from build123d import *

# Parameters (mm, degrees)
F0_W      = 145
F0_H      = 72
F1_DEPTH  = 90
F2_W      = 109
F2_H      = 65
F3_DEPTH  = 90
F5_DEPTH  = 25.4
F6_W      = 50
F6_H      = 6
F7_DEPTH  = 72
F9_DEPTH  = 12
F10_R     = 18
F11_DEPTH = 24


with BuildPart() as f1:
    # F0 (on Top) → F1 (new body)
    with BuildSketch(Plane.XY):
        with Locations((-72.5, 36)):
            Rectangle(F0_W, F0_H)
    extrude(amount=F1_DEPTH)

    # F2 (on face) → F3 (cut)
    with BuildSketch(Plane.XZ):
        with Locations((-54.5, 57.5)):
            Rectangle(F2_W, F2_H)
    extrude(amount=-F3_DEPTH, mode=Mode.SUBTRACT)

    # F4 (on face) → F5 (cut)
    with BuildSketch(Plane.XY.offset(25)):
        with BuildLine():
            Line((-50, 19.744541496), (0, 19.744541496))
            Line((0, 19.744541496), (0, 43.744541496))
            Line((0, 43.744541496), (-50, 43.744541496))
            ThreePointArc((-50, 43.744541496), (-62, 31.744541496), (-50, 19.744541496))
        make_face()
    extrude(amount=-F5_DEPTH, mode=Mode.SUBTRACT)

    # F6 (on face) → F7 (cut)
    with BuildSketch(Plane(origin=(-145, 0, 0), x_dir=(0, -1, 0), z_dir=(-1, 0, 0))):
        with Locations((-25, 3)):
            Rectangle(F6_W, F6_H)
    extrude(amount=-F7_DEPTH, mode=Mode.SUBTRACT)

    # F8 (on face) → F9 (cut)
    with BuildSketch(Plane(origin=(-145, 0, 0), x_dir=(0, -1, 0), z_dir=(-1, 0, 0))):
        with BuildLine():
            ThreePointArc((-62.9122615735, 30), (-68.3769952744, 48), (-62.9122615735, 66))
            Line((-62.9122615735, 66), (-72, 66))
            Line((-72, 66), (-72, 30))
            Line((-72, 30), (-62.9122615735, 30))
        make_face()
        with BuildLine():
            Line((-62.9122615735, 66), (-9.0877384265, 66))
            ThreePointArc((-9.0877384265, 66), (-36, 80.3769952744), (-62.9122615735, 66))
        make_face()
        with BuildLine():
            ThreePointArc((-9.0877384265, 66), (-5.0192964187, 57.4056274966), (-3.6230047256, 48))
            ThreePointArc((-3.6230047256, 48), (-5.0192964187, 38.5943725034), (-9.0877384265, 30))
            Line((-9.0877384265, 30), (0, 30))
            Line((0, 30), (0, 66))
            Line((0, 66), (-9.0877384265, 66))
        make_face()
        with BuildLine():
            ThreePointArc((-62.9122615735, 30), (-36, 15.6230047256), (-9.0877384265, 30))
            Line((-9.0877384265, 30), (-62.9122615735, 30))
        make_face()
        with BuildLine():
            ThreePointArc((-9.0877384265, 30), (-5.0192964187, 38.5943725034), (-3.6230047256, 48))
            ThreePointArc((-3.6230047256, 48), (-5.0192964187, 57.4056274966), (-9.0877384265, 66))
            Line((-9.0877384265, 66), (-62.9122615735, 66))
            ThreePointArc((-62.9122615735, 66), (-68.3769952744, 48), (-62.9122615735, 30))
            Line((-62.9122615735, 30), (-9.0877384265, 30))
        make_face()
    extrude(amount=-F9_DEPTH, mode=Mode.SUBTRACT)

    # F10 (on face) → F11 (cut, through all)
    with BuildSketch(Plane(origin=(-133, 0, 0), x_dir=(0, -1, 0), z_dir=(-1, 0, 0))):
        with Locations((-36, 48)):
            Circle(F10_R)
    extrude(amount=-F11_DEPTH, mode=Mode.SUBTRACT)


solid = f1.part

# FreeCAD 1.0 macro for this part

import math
import FreeCAD as App
import Part
import Sketcher

V = App.Vector


def add_polygon(sketch, points):
    """Adds a closed chain of lines whose ends are joined by coincident constraints."""
    first, n = sketch.GeometryCount, len(points)
    for a, b in zip(points, points[1:] + points[:1]):
        sketch.addGeometry(Part.LineSegment(App.Vector(*a, 0), App.Vector(*b, 0)), False)
    for i in range(n):
        sketch.addConstraint(Sketcher.Constraint("Coincident", first + i, 2, first + (i + 1) % n, 1))

doc = App.newDocument("Part")
body = doc.addObject("PartDesign::Body", "Body")

# Sketch on XY plane
sketch1 = body.newObject("Sketcher::SketchObject", "Sketch")
sketch1.AttachmentSupport = (doc.getObject("XY_Plane"), [""])
sketch1.MapMode = "FlatFace"
add_polygon(sketch1, [(-145, 72), (-145, 0), (0, 0), (0, 72)])  # lines 0-3
sketch1.addConstraint([
    Sketcher.Constraint("Vertical", 0),
    Sketcher.Constraint("Horizontal", 1),
    Sketcher.Constraint("Vertical", 2),
    Sketcher.Constraint("Horizontal", 3),
    Sketcher.Constraint("Coincident", 1, 2, -1, 1),
    Sketcher.Constraint("DistanceX", 1, 1, 1, 2, 145.0),
    Sketcher.Constraint("DistanceY", 0, 2, 0, 1, 72.0),
])
pad1 = body.newObject("PartDesign::Pad", "Pad")
pad1.Profile = sketch1
pad1.Length = 90

# Sketch on XZ plane
sketch2 = body.newObject("Sketcher::SketchObject", "Sketch001")
sketch2.AttachmentSupport = (doc.getObject("XZ_Plane"), [""])
sketch2.MapMode = "FlatFace"
add_polygon(sketch2, [(-109, 90), (-109, 25), (0, 25), (0, 90)])  # lines 0-3
sketch2.addConstraint([
    Sketcher.Constraint("Vertical", 0),
    Sketcher.Constraint("Horizontal", 1),
    Sketcher.Constraint("Vertical", 2),
    Sketcher.Constraint("Horizontal", 3),
    Sketcher.Constraint("PointOnObject", 1, 2, -2),
    Sketcher.Constraint("DistanceX", 1, 1, 1, 2, 109.0),
    Sketcher.Constraint("DistanceY", 0, 2, 0, 1, 65.0),
    Sketcher.Constraint("DistanceY", -1, 1, 0, 2, 25.0),
])
pocket1 = body.newObject("PartDesign::Pocket", "Pocket")
pocket1.Profile = sketch2
pocket1.Length = 90

# Sketch on XY plane
sketch3 = body.newObject("Sketcher::SketchObject", "Sketch002")
sketch3.AttachmentSupport = (doc.getObject("XY_Plane"), [""])
sketch3.MapMode = "FlatFace"
sketch3.AttachmentOffset = App.Placement(V(0, 0, 25), App.Rotation())
sketch3.addGeometry([
    Part.LineSegment(V(-50, 20, 0), V(0, 20, 0)),
    Part.LineSegment(V(0, 20, 0), V(0, 44, 0)),
    Part.LineSegment(V(0, 44, 0), V(-50, 44, 0)),
    Part.ArcOfCircle(Part.Circle(V(-50, 32, 0), V(0, 0, 1), 12), math.radians(90), math.radians(270)),
], False)
sketch3.addConstraint([
    Sketcher.Constraint("Coincident", 0, 2, 1, 1),
    Sketcher.Constraint("Coincident", 1, 2, 2, 1),
    Sketcher.Constraint("Tangent", 2, 2, 3, 1),
    Sketcher.Constraint("Tangent", 3, 2, 0, 1),
    Sketcher.Constraint("Horizontal", 0),
    Sketcher.Constraint("Vertical", 1),
    Sketcher.Constraint("Horizontal", 2),
    Sketcher.Constraint("PointOnObject", 0, 2, -2),
    Sketcher.Constraint("Radius", 3, 12.0),
    Sketcher.Constraint("DistanceX", 0, 1, 0, 2, 50.0),
    Sketcher.Constraint("DistanceY", -1, 1, 3, 3, 31.744541),
])
pocket2 = body.newObject("PartDesign::Pocket", "Pocket001")
pocket2.Profile = sketch3
pocket2.Length = 25.4

# Sketch on YZ plane
sketch4 = body.newObject("Sketcher::SketchObject", "Sketch003")
sketch4.AttachmentSupport = (doc.getObject("YZ_Plane"), [""])
sketch4.MapMode = "FlatFace"
sketch4.AttachmentOffset = App.Placement(V(0, 0, -145), App.Rotation())
add_polygon(sketch4, [(50, 6), (50, 0), (0, 0), (0, 6)])  # lines 0-3
sketch4.addConstraint([
    Sketcher.Constraint("Vertical", 0),
    Sketcher.Constraint("Horizontal", 1),
    Sketcher.Constraint("Vertical", 2),
    Sketcher.Constraint("Horizontal", 3),
    Sketcher.Constraint("Coincident", 1, 2, -1, 1),
    Sketcher.Constraint("DistanceX", 1, 2, 1, 1, 50.0),
    Sketcher.Constraint("DistanceY", 0, 2, 0, 1, 6.0),
])
pocket3 = body.newObject("PartDesign::Pocket", "Pocket002")
pocket3.Profile = sketch4
pocket3.Length = 72
pocket3.Reversed = True

# Sketch on YZ plane
sketch5 = body.newObject("Sketcher::SketchObject", "Sketch004")
sketch5.AttachmentSupport = (doc.getObject("YZ_Plane"), [""])
sketch5.MapMode = "FlatFace"
sketch5.AttachmentOffset = App.Placement(V(0, 0, -145), App.Rotation())
sketch5.addGeometry([
    Part.LineSegment(V(63, 66, 0), V(72, 66, 0)),  # 0
    Part.LineSegment(V(72, 66, 0), V(72, 30, 0)),  # 1
    Part.LineSegment(V(72, 30, 0), V(63, 30, 0)),  # 2
    Part.ArcOfCircle(Part.Circle(V(36, 48, 0), V(0, 0, 1), 32), math.radians(-146), math.radians(-34)),  # 3
    Part.LineSegment(V(9, 30, 0), V(0, 30, 0)),  # 4
    Part.LineSegment(V(0, 30, 0), V(0, 66, 0)),  # 5
    Part.LineSegment(V(0, 66, 0), V(9, 66, 0)),  # 6
    Part.ArcOfCircle(Part.Circle(V(36, 48, 0), V(0, 0, 1), 32), math.radians(34), math.radians(146)),  # 7
], False)
sketch5.addConstraint([
    Sketcher.Constraint("Coincident", 0, 2, 1, 1),
    Sketcher.Constraint("Coincident", 1, 2, 2, 1),
    Sketcher.Constraint("Coincident", 2, 2, 3, 2),
    Sketcher.Constraint("Coincident", 3, 1, 4, 1),
    Sketcher.Constraint("Coincident", 4, 2, 5, 1),
    Sketcher.Constraint("Coincident", 5, 2, 6, 1),
    Sketcher.Constraint("Coincident", 6, 2, 7, 2),
    Sketcher.Constraint("Coincident", 7, 1, 0, 1),
    Sketcher.Constraint("Horizontal", 0),
    Sketcher.Constraint("Vertical", 1),
    Sketcher.Constraint("Horizontal", 2),
    Sketcher.Constraint("Horizontal", 4),
    Sketcher.Constraint("Vertical", 5),
    Sketcher.Constraint("Horizontal", 6),
    Sketcher.Constraint("Coincident", 7, 3, 3, 3),
    Sketcher.Constraint("Equal", 3, 7),
    Sketcher.Constraint("PointOnObject", 4, 2, -2),
    Sketcher.Constraint("Horizontal", 2, 2, 3, 1),
    Sketcher.Constraint("Horizontal", 0, 2, 5, 2),
    Sketcher.Constraint("Vertical", 3, 1, 6, 2),
    Sketcher.Constraint("Equal", 2, 4),
    Sketcher.Constraint("DistanceY", 1, 2, 1, 1, 36.0),
    Sketcher.Constraint("DistanceX", -1, 1, 3, 3, 36.0),
    Sketcher.Constraint("DistanceY", -1, 1, 3, 3, 48.0),
    Sketcher.Constraint("Radius", 3, 32.376995),
])
pocket4 = body.newObject("PartDesign::Pocket", "Pocket003")
pocket4.Profile = sketch5
pocket4.Length = 12
pocket4.Reversed = True

# Sketch on YZ plane
sketch6 = body.newObject("Sketcher::SketchObject", "Sketch005")
sketch6.AttachmentSupport = (doc.getObject("YZ_Plane"), [""])
sketch6.MapMode = "FlatFace"
sketch6.AttachmentOffset = App.Placement(V(0, 0, -133), App.Rotation())
sketch6.addGeometry(Part.Circle(V(36, 48, 0), V(0, 0, 1), 18), False)
sketch6.addConstraint([
    Sketcher.Constraint("Diameter", 0, 36.0),
    Sketcher.Constraint("DistanceX", -1, 1, 0, 3, 36.0),
    Sketcher.Constraint("DistanceY", -1, 1, 0, 3, 48.0),
])
pocket5 = body.newObject("PartDesign::Pocket", "Pocket004")
pocket5.Profile = sketch6
pocket5.Type = "ThroughAll"
pocket5.Reversed = True

doc.recompute()
